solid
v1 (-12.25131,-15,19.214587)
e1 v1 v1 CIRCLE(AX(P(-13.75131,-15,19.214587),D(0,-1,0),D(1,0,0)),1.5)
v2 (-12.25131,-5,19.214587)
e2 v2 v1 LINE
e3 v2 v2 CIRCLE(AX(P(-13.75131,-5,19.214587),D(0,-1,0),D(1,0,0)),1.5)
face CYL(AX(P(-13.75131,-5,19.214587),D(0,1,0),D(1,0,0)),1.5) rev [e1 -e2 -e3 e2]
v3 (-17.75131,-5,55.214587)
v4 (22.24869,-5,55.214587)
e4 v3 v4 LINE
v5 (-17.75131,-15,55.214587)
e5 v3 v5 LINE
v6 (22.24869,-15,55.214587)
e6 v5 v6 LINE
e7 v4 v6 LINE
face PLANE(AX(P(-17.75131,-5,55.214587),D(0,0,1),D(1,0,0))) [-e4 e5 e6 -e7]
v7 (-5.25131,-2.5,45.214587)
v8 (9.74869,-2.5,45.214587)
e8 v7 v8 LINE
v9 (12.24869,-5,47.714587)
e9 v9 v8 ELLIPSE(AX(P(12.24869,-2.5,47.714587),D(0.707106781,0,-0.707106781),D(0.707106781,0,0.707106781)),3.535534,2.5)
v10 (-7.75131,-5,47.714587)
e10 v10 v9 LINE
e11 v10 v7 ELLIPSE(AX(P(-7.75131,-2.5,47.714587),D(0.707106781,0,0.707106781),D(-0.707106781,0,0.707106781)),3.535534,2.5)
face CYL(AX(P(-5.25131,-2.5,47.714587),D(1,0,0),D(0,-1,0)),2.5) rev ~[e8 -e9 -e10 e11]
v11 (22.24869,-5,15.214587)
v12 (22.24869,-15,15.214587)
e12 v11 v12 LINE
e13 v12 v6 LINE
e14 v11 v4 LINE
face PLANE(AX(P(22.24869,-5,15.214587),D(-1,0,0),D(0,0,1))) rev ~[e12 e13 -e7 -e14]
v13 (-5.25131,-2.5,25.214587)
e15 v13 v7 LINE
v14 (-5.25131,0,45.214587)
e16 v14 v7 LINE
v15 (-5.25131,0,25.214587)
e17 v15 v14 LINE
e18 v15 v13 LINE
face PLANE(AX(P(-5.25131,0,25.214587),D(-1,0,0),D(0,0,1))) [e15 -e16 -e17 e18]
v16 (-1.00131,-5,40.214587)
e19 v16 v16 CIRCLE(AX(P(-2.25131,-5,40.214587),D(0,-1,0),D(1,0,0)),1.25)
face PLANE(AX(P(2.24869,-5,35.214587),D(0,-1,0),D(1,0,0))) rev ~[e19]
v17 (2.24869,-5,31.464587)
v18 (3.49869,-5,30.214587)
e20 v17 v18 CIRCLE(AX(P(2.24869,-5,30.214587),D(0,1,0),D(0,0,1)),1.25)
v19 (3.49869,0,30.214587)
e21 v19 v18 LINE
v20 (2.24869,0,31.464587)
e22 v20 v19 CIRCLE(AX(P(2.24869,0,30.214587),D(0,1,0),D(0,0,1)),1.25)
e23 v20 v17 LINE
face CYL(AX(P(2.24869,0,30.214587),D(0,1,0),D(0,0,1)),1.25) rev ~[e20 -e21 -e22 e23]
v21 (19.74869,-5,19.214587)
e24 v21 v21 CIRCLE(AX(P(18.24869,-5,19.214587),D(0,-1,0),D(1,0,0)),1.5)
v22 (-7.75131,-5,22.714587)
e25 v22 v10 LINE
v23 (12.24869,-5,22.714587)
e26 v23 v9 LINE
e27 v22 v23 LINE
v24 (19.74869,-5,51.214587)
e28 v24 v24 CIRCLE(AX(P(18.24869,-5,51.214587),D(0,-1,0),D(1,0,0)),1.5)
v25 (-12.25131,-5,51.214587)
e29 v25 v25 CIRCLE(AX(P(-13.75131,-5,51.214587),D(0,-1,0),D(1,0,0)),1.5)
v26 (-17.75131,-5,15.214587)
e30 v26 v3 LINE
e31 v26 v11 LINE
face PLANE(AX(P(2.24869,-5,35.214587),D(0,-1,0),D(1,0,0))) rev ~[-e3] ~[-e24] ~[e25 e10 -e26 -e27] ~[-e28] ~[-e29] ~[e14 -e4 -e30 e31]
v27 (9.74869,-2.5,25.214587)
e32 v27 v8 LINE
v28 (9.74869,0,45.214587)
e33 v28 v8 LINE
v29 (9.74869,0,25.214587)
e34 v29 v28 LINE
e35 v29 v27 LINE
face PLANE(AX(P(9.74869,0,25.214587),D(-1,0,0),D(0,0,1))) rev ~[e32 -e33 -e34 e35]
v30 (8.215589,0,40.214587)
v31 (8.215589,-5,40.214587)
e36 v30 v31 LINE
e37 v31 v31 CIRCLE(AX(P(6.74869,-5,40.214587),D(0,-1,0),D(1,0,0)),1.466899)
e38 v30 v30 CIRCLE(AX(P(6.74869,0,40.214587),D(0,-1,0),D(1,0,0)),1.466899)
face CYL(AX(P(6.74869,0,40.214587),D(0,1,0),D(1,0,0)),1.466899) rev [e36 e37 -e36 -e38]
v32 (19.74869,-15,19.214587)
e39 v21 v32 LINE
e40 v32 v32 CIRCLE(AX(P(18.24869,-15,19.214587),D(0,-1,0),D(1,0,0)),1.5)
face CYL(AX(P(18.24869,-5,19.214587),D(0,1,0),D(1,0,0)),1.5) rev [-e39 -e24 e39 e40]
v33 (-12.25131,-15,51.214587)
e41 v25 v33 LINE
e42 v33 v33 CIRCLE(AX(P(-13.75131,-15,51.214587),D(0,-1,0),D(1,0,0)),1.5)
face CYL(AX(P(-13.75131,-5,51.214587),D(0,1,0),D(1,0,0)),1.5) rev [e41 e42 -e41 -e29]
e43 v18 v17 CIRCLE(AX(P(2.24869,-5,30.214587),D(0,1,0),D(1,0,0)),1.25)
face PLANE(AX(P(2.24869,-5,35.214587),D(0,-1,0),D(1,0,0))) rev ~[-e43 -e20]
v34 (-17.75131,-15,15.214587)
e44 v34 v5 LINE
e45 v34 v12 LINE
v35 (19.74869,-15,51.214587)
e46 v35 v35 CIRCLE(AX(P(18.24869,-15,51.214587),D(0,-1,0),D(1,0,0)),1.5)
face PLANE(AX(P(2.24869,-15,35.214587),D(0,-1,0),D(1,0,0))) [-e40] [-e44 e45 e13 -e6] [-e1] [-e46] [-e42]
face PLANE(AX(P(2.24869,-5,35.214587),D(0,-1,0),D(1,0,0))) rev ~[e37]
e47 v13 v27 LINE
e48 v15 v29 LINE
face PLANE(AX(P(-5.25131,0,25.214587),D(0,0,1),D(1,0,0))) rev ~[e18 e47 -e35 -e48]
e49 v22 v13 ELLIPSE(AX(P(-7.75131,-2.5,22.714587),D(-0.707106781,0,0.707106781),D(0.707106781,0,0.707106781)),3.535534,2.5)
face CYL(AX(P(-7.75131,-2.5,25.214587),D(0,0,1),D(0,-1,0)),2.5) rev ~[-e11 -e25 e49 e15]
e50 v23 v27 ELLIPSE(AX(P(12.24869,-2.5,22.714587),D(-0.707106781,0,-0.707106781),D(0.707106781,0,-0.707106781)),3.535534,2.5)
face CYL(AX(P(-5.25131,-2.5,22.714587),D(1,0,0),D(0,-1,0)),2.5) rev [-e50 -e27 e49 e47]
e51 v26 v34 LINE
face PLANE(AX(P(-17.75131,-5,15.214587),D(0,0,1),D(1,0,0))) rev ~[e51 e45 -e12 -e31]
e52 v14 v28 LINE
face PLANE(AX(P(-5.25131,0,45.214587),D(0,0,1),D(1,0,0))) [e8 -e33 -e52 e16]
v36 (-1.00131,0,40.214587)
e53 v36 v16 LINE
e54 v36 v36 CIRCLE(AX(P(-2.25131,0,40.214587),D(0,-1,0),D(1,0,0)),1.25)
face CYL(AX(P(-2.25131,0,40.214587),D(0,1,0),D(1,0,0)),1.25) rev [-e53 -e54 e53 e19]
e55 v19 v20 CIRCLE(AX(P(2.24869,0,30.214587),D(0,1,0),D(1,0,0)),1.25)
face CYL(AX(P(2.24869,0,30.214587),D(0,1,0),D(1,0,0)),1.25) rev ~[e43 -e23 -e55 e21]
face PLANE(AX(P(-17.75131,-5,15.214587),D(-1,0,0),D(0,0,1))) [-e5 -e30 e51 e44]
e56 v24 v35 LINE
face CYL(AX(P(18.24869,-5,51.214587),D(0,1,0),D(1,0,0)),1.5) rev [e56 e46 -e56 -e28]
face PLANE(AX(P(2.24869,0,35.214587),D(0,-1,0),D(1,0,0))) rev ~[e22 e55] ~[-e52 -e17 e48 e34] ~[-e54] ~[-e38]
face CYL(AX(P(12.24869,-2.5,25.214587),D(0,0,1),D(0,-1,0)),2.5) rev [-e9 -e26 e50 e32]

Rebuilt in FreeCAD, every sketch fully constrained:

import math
import FreeCAD as App
import Part
import Sketcher
from FreeCAD import Vector
Q = App.Units.Quantity


def edges_at(feature, points):
    """Names of the edges that pass closest to the given points."""
    edges = feature.Shape.Edges
    near = lambda p: min(range(len(edges)), key=lambda i: edges[i].distToShape(Part.Vertex(*p))[0])
    return sorted({f"Edge{near(p) + 1}" for p in points})


def add_polygon(sketch, points):
    """Adds a closed chain of lines whose ends are joined by coincident constraints."""
    first, n = sketch.GeometryCount, len(points)
    for a, b in zip(points, points[1:] + points[:1]):
        sketch.addGeometry(Part.LineSegment(App.Vector(*a, 0), App.Vector(*b, 0)), False)
    for i in range(n):
        sketch.addConstraint(Sketcher.Constraint("Coincident", first + i, 2, first + (i + 1) % n, 1))

doc = App.newDocument("Part")
body = doc.addObject("PartDesign::Body", "Body")

sketch1 = body.newObject("Sketcher::SketchObject", "Sketch")
sketch1.AttachmentSupport = (doc.getObject("XZ_Plane"), [""])
sketch1.MapMode = "FlatFace"
add_polygon(sketch1, [(-5.25131, 45.214587), (-5.25131, 25.214587), (9.74869, 25.214587), (9.74869, 45.214587)])
sketch1.addGeometry(Part.ArcOfCircle(Part.Circle(Vector(2.24869, 30.214587, 0), Vector(0, 0, 1), 1.25), math.radians(90), math.radians(360)), False)
sketch1.addGeometry(Part.ArcOfCircle(Part.Circle(Vector(2.24869, 30.214587, 0), Vector(0, 0, 1), 1.25), math.radians(0), math.radians(90)), False)
sketch1.addGeometry(Part.Circle(Vector(-2.25131, 40.214587, 0), Vector(0, 0, 1), 1.25), False)
sketch1.addGeometry(Part.Circle(Vector(6.74869, 40.214587, 0), Vector(0, 0, 1), 1.466899), False)
sketch1.addConstraint(Sketcher.Constraint("Tangent", 4, 1, 5, 2))
sketch1.addConstraint(Sketcher.Constraint("Coincident", 5, 1, 4, 2))
sketch1.addConstraint(Sketcher.Constraint("Vertical", 0))
sketch1.addConstraint(Sketcher.Constraint("Horizontal", 1))
sketch1.addConstraint(Sketcher.Constraint("Vertical", 2))
sketch1.addConstraint(Sketcher.Constraint("Horizontal", 3))
sketch1.addConstraint(Sketcher.Constraint("Equal", 5, 6))
sketch1.addConstraint(Sketcher.Constraint("Horizontal", 6, 3, 7, 3))
sketch1.addConstraint(Sketcher.Constraint("Horizontal", 4, 3, 5, 1))
sketch1.addConstraint(Sketcher.Constraint("Vertical", 5, 3, 4, 1))
sketch1.addConstraint(Sketcher.Constraint("Diameter", 6, Q("2.5 mm")))
sketch1.addConstraint(Sketcher.Constraint("DistanceX", 1, 1, 1, 2, Q("15 mm")))
sketch1.addConstraint(Sketcher.Constraint("DistanceY", 0, 2, 0, 1, Q("20 mm")))
sketch1.addConstraint(Sketcher.Constraint("DistanceY", 4, 3, 6, 3, Q("10 mm")))
sketch1.addConstraint(Sketcher.Constraint("DistanceX", 6, 3, 7, 3, Q("9 mm")))
sketch1.addConstraint(Sketcher.Constraint("DistanceY", 0, 2, 4, 3, Q("5 mm")))
sketch1.addConstraint(Sketcher.Constraint("DistanceX", 0, 2, 6, 3, Q("3 mm")))
sketch1.addConstraint(Sketcher.Constraint("Diameter", 7, Q("2.933799 mm")))
sketch1.addConstraint(Sketcher.Constraint("DistanceX", 6, 3, 4, 3, Q("4.5 mm")))
sketch1.addConstraint(Sketcher.Constraint("DistanceX", -1, 1, 4, 3, Q("2.24869 mm")))
sketch1.addConstraint(Sketcher.Constraint("DistanceY", -1, 1, 4, 3, Q("30.214587 mm")))
pad1 = body.newObject("PartDesign::Pad", "Pad")
pad1.Profile = sketch1
pad1.Length = 5

sketch2 = body.newObject("Sketcher::SketchObject", "Sketch001")
sketch2.AttachmentSupport = (doc.getObject("XZ_Plane"), [""])
sketch2.MapMode = "FlatFace"
sketch2.AttachmentOffset = App.Placement(Vector(0, 0, 5), App.Rotation())
add_polygon(sketch2, [(-17.75131, 55.214587), (-17.75131, 15.214587), (22.24869, 15.214587), (22.24869, 55.214587)])
sketch2.addGeometry(Part.Circle(Vector(-13.75131, 19.214587, 0), Vector(0, 0, 1), 1.5), False)
sketch2.addGeometry(Part.Circle(Vector(18.24869, 19.214587, 0), Vector(0, 0, 1), 1.5), False)
sketch2.addGeometry(Part.Circle(Vector(-13.75131, 51.214587, 0), Vector(0, 0, 1), 1.5), False)
sketch2.addGeometry(Part.Circle(Vector(18.24869, 51.214587, 0), Vector(0, 0, 1), 1.5), False)
sketch2.addConstraint(Sketcher.Constraint("Vertical", 0))
sketch2.addConstraint(Sketcher.Constraint("Horizontal", 1))
sketch2.addConstraint(Sketcher.Constraint("Vertical", 2))
sketch2.addConstraint(Sketcher.Constraint("Horizontal", 3))
sketch2.addConstraint(Sketcher.Constraint("Equal", 4, 5))
sketch2.addConstraint(Sketcher.Constraint("Equal", 5, 6))
sketch2.addConstraint(Sketcher.Constraint("Equal", 6, 7))
sketch2.addConstraint(Sketcher.Constraint("Horizontal", 4, 3, 5, 3))
sketch2.addConstraint(Sketcher.Constraint("Horizontal", 6, 3, 7, 3))
sketch2.addConstraint(Sketcher.Constraint("Vertical", 4, 3, 6, 3))
sketch2.addConstraint(Sketcher.Constraint("Vertical", 5, 3, 7, 3))
sketch2.addConstraint(Sketcher.Constraint("Equal", 3, 0))
sketch2.addConstraint(Sketcher.Constraint("Diameter", 4, Q("3 mm")))
sketch2.addConstraint(Sketcher.Constraint("DistanceX", 1, 1, 1, 2, Q("40 mm")))
sketch2.addConstraint(Sketcher.Constraint("DistanceX", 4, 3, 5, 3, Q("32 mm")))
sketch2.addConstraint(Sketcher.Constraint("DistanceY", 4, 3, 6, 3, Q("32 mm")))
sketch2.addConstraint(Sketcher.Constraint("DistanceX", 0, 2, 4, 3, Q("4 mm")))
sketch2.addConstraint(Sketcher.Constraint("DistanceY", 0, 2, 4, 3, Q("4 mm")))
sketch2.addConstraint(Sketcher.Constraint("DistanceX", 4, 3, -1, 1, Q("13.75131 mm")))
sketch2.addConstraint(Sketcher.Constraint("DistanceY", -1, 1, 4, 3, Q("19.214587 mm")))
pad2 = body.newObject("PartDesign::Pad", "Pad001")
pad2.Profile = sketch2
pad2.Length = 10
doc.recompute()

fillet = body.newObject("PartDesign::Fillet", "Fillet")
fillet.Base = (pad2, edges_at(pad2, [
    (-5.251, -5, 35.215),
    (2.249, -5, 25.215),
    (9.749, -5, 35.215),
    (2.249, -5, 45.215),
]))
fillet.Radius = 2.5

doc.recompute()
